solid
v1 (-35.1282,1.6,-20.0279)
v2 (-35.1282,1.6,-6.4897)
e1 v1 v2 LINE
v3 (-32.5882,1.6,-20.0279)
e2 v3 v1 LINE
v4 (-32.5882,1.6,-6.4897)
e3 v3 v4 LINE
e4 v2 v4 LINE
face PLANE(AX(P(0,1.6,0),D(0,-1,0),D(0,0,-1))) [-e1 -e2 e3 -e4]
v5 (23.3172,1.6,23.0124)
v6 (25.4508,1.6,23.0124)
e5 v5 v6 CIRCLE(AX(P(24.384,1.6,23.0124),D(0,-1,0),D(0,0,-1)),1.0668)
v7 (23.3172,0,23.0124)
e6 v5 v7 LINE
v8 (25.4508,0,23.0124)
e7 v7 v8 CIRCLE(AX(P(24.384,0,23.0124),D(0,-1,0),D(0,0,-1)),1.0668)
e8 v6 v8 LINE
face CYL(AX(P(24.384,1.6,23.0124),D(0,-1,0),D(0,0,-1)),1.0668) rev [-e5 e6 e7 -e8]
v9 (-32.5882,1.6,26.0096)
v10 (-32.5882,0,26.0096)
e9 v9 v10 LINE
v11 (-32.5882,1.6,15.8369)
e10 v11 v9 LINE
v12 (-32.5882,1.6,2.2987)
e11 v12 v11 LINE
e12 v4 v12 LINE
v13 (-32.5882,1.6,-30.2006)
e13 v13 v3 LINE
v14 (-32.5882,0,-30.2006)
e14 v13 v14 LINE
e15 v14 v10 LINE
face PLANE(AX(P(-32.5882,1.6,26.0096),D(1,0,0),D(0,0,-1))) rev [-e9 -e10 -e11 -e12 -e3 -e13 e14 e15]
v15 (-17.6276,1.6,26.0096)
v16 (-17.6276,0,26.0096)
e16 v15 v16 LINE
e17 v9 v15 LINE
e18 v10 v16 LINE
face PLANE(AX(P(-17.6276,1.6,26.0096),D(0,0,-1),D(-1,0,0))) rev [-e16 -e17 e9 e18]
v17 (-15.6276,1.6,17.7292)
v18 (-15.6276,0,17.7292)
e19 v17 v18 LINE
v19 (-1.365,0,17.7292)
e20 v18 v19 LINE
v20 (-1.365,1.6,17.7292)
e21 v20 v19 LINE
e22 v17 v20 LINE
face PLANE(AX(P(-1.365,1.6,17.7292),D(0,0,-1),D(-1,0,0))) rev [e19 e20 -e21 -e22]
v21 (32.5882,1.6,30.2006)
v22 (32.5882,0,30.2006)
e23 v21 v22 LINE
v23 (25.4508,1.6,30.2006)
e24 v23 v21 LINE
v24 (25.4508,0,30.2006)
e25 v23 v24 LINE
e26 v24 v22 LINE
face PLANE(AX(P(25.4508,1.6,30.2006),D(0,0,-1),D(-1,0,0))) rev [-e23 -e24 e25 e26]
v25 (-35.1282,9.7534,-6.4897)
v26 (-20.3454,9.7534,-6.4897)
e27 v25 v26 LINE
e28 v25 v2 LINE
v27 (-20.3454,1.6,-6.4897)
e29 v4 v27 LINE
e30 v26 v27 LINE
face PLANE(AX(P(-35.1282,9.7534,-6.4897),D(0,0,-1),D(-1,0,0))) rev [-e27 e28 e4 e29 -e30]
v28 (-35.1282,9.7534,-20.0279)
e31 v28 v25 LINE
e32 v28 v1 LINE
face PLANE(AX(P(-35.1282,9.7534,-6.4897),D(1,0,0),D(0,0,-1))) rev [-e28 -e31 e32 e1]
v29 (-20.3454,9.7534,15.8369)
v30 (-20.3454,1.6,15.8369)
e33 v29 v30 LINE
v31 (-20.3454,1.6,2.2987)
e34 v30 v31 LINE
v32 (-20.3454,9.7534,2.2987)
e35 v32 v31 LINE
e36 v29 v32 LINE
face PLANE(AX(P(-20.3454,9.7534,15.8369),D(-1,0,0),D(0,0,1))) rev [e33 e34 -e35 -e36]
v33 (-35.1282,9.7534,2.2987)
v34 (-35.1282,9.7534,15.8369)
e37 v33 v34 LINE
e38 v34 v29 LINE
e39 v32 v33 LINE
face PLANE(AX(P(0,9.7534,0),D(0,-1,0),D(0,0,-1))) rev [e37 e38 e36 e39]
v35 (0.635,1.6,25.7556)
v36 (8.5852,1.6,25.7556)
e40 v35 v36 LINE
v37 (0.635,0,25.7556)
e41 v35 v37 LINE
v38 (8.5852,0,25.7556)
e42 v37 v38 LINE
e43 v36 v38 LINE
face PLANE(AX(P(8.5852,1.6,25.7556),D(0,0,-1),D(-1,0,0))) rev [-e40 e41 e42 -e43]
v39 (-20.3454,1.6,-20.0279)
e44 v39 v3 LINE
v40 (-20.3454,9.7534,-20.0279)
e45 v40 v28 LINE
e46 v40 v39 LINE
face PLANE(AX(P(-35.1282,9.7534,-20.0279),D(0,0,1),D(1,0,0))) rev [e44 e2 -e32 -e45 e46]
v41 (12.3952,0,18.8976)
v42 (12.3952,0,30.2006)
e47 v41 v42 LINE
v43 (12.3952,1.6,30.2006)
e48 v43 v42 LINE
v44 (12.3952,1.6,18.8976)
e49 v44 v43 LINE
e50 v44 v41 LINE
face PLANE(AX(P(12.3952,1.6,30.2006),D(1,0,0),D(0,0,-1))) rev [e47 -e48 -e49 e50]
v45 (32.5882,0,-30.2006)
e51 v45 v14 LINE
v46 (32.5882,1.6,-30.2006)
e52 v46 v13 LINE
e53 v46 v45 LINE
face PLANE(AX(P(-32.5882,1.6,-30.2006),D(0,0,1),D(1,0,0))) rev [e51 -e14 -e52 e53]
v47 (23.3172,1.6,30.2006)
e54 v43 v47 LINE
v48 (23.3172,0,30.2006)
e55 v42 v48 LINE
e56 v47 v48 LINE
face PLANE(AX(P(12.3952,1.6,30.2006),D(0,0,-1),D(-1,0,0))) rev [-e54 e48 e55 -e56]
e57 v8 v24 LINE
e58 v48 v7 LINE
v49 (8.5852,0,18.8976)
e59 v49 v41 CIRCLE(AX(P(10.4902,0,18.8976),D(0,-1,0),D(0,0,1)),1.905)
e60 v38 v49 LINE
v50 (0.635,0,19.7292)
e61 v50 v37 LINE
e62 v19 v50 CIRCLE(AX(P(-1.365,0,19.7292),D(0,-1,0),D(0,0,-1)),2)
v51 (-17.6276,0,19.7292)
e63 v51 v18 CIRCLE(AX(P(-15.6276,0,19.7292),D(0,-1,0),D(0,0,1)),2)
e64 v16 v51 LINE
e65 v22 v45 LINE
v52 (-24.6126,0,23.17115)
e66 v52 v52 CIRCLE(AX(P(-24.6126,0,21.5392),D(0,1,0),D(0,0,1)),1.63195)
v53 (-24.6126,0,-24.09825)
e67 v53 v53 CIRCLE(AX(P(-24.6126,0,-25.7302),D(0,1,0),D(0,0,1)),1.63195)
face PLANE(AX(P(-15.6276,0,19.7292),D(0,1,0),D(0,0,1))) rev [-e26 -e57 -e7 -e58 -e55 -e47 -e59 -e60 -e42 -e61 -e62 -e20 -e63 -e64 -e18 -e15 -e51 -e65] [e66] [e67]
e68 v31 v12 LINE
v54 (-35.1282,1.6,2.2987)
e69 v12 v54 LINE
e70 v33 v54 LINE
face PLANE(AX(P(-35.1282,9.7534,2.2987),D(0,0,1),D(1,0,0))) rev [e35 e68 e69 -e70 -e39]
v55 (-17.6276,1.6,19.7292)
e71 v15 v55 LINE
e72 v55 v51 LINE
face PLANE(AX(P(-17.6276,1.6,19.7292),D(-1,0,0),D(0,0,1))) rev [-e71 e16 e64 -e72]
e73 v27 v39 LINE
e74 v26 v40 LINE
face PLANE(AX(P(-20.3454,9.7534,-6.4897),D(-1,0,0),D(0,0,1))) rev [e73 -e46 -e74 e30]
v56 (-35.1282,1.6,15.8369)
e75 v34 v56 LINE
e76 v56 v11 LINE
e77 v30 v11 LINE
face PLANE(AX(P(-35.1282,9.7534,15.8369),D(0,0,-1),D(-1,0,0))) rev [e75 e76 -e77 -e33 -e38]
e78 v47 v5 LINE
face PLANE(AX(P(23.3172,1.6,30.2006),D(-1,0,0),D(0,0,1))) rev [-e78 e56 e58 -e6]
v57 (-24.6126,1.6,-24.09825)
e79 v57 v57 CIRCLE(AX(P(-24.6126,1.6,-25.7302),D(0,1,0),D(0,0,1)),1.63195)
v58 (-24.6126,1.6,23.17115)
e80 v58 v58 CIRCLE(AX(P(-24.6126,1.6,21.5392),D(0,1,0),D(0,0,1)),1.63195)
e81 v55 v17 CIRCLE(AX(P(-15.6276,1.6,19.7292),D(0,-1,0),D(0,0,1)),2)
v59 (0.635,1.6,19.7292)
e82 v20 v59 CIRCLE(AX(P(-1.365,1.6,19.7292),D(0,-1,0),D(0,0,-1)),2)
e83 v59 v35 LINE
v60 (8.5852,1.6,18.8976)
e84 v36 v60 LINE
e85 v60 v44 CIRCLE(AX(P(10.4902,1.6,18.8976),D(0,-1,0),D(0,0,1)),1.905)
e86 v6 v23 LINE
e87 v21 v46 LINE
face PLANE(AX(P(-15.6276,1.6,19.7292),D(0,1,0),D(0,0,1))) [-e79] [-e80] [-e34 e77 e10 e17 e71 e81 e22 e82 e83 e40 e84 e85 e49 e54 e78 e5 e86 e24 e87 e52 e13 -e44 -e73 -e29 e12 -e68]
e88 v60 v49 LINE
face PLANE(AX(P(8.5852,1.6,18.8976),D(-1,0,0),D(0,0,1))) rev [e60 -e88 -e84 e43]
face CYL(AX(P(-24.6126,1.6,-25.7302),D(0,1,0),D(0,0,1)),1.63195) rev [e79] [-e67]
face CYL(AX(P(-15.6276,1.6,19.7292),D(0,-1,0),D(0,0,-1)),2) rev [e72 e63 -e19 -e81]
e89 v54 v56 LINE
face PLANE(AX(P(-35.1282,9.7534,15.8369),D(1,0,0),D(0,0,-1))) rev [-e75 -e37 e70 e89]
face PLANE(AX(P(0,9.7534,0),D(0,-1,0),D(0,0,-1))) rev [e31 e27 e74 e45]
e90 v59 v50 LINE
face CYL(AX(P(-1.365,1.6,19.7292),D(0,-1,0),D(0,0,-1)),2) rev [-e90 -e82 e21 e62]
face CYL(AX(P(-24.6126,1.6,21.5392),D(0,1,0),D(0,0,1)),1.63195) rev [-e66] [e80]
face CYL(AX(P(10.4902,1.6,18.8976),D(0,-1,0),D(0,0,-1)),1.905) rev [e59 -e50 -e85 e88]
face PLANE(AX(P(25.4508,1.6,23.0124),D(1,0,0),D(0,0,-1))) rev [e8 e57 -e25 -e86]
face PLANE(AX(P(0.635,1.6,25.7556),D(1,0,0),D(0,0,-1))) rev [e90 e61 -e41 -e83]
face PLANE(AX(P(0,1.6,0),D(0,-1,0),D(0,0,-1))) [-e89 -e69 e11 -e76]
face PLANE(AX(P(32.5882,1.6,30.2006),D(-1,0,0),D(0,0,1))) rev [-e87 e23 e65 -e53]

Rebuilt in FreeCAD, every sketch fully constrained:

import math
import FreeCAD as App
import Part
import Sketcher

V = App.Vector
Q = App.Units.Quantity

doc = App.newDocument("Part")
params = doc.addObject("Spreadsheet::Sheet", "Params")
for row, (alias, value) in enumerate([
    ("sketch1_radius", "0.042 in"),
    ("sketch1_radius2", "0.075 in"),
    ("sketch1_width", "0.43 in"),
    ("sketch1_height", "0.27 in"),
    ("sketch1_width2", "0.281 in"),
    ("pad1_length", "1.6 mm"),
    ("hole_diameter", "0.1285 in"),
    ("sketch3_width", "0.582 in"),
    ("sketch3_height", "0.533 in"),
    ("pad2_length", "0.321 in"),
], start=1):
    params.set(f"A{row}", alias)
    params.set(f"B{row}", "=" + value)
    params.setAlias(f"B{row}", alias)

body = doc.addObject("PartDesign::Body", "Body")

# Sketch on XZ plane
sketch1 = doc.addObject("Sketcher::SketchObject", "Sketch")
body.addObject(sketch1)
sketch1.AttachmentSupport = (doc.XZ_Plane, [""])
sketch1.MapMode = "FlatFace"
sketch1.addGeometry([
    Part.LineSegment(V(23.3, 30.2, 0), V(23.3, 23, 0)),  # 0
    Part.ArcOfCircle(Part.Circle(V(24.4, 23, 0), V(0, 0, 1), 1.1), math.radians(180), math.radians(360)),  # 1
    Part.LineSegment(V(25.5, 23, 0), V(25.5, 30.2, 0)),  # 2
    Part.LineSegment(V(25.5, 30.2, 0), V(32.6, 30.2, 0)),  # 3
    Part.LineSegment(V(32.6, 30.2, 0), V(32.6, -30.2, 0)),  # 4
    Part.LineSegment(V(32.6, -30.2, 0), V(-32.6, -30.2, 0)),  # 5
    Part.LineSegment(V(-32.6, -30.2, 0), V(-32.6, 26, 0)),  # 6
    Part.LineSegment(V(-32.6, 26, 0), V(-17.6, 26, 0)),  # 7
    Part.LineSegment(V(-17.6, 26, 0), V(-17.6, 19.7, 0)),  # 8
    Part.ArcOfCircle(Part.Circle(V(-15.6, 19.7, 0), V(0, 0, 1), 2), math.radians(-180), math.radians(-90)),  # 9
    Part.LineSegment(V(-15.6, 17.7, 0), V(-1.4, 17.7, 0)),  # 10
    Part.ArcOfCircle(Part.Circle(V(-1.4, 19.7, 0), V(0, 0, 1), 2), math.radians(-90), math.radians(0)),  # 11
    Part.LineSegment(V(0.6, 19.7, 0), V(0.6, 25.8, 0)),  # 12
    Part.LineSegment(V(0.6, 25.8, 0), V(8.6, 25.8, 0)),  # 13
    Part.LineSegment(V(8.6, 25.8, 0), V(8.6, 18.9, 0)),  # 14
    Part.ArcOfCircle(Part.Circle(V(10.5, 18.9, 0), V(0, 0, 1), 1.9), math.radians(180), math.radians(360)),  # 15
    Part.LineSegment(V(12.4, 18.9, 0), V(12.4, 30.2, 0)),  # 16
    Part.LineSegment(V(12.4, 30.2, 0), V(23.3, 30.2, 0)),  # 17
], False)
sketch1.addConstraint([
    Sketcher.Constraint("Tangent", 0, 2, 1, 1),
    Sketcher.Constraint("Tangent", 1, 2, 2, 1),
    Sketcher.Constraint("Coincident", 2, 2, 3, 1),
    Sketcher.Constraint("Coincident", 3, 2, 4, 1),
    Sketcher.Constraint("Coincident", 4, 2, 5, 1),
    Sketcher.Constraint("Coincident", 5, 2, 6, 1),
    Sketcher.Constraint("Coincident", 6, 2, 7, 1),
    Sketcher.Constraint("Coincident", 7, 2, 8, 1),
    Sketcher.Constraint("Tangent", 8, 2, 9, 1),
    Sketcher.Constraint("Tangent", 9, 2, 10, 1),
    Sketcher.Constraint("Tangent", 10, 2, 11, 1),
    Sketcher.Constraint("Tangent", 11, 2, 12, 1),
    Sketcher.Constraint("Coincident", 12, 2, 13, 1),
    Sketcher.Constraint("Coincident", 13, 2, 14, 1),
    Sketcher.Constraint("Tangent", 14, 2, 15, 1),
    Sketcher.Constraint("Tangent", 15, 2, 16, 1),
    Sketcher.Constraint("Coincident", 16, 2, 17, 1),
    Sketcher.Constraint("Coincident", 17, 2, 0, 1),
    Sketcher.Constraint("Vertical", 0),
    Sketcher.Constraint("Vertical", 2),
    Sketcher.Constraint("Horizontal", 3),
    Sketcher.Constraint("Vertical", 4),
    Sketcher.Constraint("Horizontal", 5),
    Sketcher.Constraint("Vertical", 6),
    Sketcher.Constraint("Horizontal", 7),
    Sketcher.Constraint("Vertical", 8),
    Sketcher.Constraint("Horizontal", 10),
    Sketcher.Constraint("Vertical", 12),
    Sketcher.Constraint("Horizontal", 13),
    Sketcher.Constraint("Vertical", 14),
    Sketcher.Constraint("Vertical", 16),
    Sketcher.Constraint("Horizontal", 17),
    Sketcher.Constraint("Equal", 9, 11),
    Sketcher.Constraint("Symmetric", 3, 2, 5, 2, -1, 1),
    Sketcher.Constraint("Horizontal", 3, 2, 16, 2),
    Sketcher.Constraint("Radius", 1, Q("0.042 in")),
    Sketcher.Constraint("Radius", 15, Q("0.075 in")),
    Sketcher.Constraint("DistanceX", 17, 1, 17, 2, Q("0.43 in")),
    Sketcher.Constraint("DistanceY", 14, 2, 14, 1, Q("0.27 in")),
    Sketcher.Constraint("DistanceX", 3, 1, 3, 2, Q("0.281 in")),
    Sketcher.Constraint("DistanceX", 5, 2, 5, 1, Q("2.566 in")),
    Sketcher.Constraint("DistanceX", 7, 1, 7, 2, Q("0.589 in")),
    Sketcher.Constraint("DistanceX", 13, 1, 13, 2, Q("0.313 in")),
    Sketcher.Constraint("DistanceY", 0, 2, 0, 1, Q("0.283 in")),
    Sketcher.Constraint("DistanceY", 4, 2, 4, 1, Q("2.378 in")),
    Sketcher.Constraint("DistanceY", 6, 1, 6, 2, Q("2.213 in")),
    Sketcher.Constraint("DistanceY", 16, 1, 16, 2, Q("0.445 in")),
    Sketcher.Constraint("Radius", 9, 2.0),
    Sketcher.Constraint("DistanceY", -1, 1, 9, 2, Q("0.698 in")),
])
sketch1.setExpression("Constraints[35]", "Params.sketch1_radius")
sketch1.setExpression("Constraints[36]", "Params.sketch1_radius2")
sketch1.setExpression("Constraints[37]", "Params.sketch1_width")
sketch1.setExpression("Constraints[38]", "Params.sketch1_height")
sketch1.setExpression("Constraints[39]", "Params.sketch1_width2")
pad1 = doc.addObject("PartDesign::Pad", "Pad")
body.addObject(pad1)
pad1.Profile = sketch1
pad1.setExpression("Length", "Params.pad1_length")
pad1.Reversed = True

# Sketch on XZ plane
sketch2 = doc.addObject("Sketcher::SketchObject", "Sketch001")
body.addObject(sketch2)
sketch2.AttachmentSupport = (doc.XZ_Plane, [""])
sketch2.MapMode = "FlatFace"
sketch2.AttachmentOffset = App.Placement(V(0, 0, -1.6), App.Rotation())
sketch2.addGeometry([
    Part.Circle(V(-24.6, -25.7, 0), V(0, 0, 1), 1.6),
    Part.Circle(V(-24.6, 21.5, 0), V(0, 0, 1), 1.6),
], False)
sketch2.addConstraint([
    Sketcher.Constraint("Equal", 0, 1),
    Sketcher.Constraint("Vertical", 0, 3, 1, 3),
    Sketcher.Constraint("Diameter", 0, Q("0.1285 in")),
    Sketcher.Constraint("DistanceX", 0, 3, -1, 1, Q("0.969 in")),
    Sketcher.Constraint("DistanceY", 0, 3, -1, 1, Q("1.013 in")),
    Sketcher.Constraint("DistanceY", -1, 1, 1, 3, Q("0.848 in")),
])
doc.recompute()
hole = doc.addObject("PartDesign::Hole", "Hole")
body.addObject(hole)
hole.Profile = sketch2
hole.ThreadType = "None"
hole.setExpression("Diameter", "Params.hole_diameter")
hole.DepthType = "ThroughAll"
hole.Reversed = True

# Sketch on XZ plane
sketch3 = doc.addObject("Sketcher::SketchObject", "Sketch002")
body.addObject(sketch3)
sketch3.AttachmentSupport = (doc.XZ_Plane, [""])
sketch3.MapMode = "FlatFace"
sketch3.AttachmentOffset = App.Placement(V(0, 0, -1.6), App.Rotation())
sketch3.addGeometry([
    Part.LineSegment(V(-35, -20, 0), V(-35, -6, 0)),  # 0
    Part.LineSegment(V(-35, -6, 0), V(-20, -6, 0)),  # 1
    Part.LineSegment(V(-20, -6, 0), V(-20, -20, 0)),  # 2
    Part.LineSegment(V(-20, -20, 0), V(-35, -20, 0)),  # 3
    Part.LineSegment(V(-35, 2, 0), V(-35, 16, 0)),  # 4
    Part.LineSegment(V(-35, 16, 0), V(-20, 16, 0)),  # 5
    Part.LineSegment(V(-20, 16, 0), V(-20, 2, 0)),  # 6
    Part.LineSegment(V(-20, 2, 0), V(-35, 2, 0)),  # 7
], False)
sketch3.addConstraint([
    Sketcher.Constraint("Coincident", 0, 2, 1, 1),
    Sketcher.Constraint("Coincident", 1, 2, 2, 1),
    Sketcher.Constraint("Coincident", 2, 2, 3, 1),
    Sketcher.Constraint("Coincident", 3, 2, 0, 1),
    Sketcher.Constraint("Coincident", 4, 2, 5, 1),
    Sketcher.Constraint("Coincident", 5, 2, 6, 1),
    Sketcher.Constraint("Coincident", 6, 2, 7, 1),
    Sketcher.Constraint("Coincident", 7, 2, 4, 1),
    Sketcher.Constraint("Vertical", 0),
    Sketcher.Constraint("Horizontal", 1),
    Sketcher.Constraint("Vertical", 2),
    Sketcher.Constraint("Horizontal", 3),
    Sketcher.Constraint("Vertical", 4),
    Sketcher.Constraint("Horizontal", 5),
    Sketcher.Constraint("Vertical", 6),
    Sketcher.Constraint("Horizontal", 7),
    Sketcher.Constraint("Vertical", 3, 2, 4, 2),
    Sketcher.Constraint("Vertical", 2, 2, 5, 2),
    Sketcher.Constraint("Equal", 2, 4),
    Sketcher.Constraint("DistanceX", 1, 1, 1, 2, Q("0.582 in")),
    Sketcher.Constraint("DistanceY", 0, 1, 0, 2, Q("0.533 in")),
    Sketcher.Constraint("DistanceX", 0, 2, -1, 1, Q("1.383 in")),
    Sketcher.Constraint("DistanceY", 0, 2, 4, 2, Q("0.879 in")),
    Sketcher.Constraint("DistanceY", 0, 2, -1, 1, Q("0.2555 in")),
])
sketch3.setExpression("Constraints[19]", "Params.sketch3_width")
sketch3.setExpression("Constraints[20]", "Params.sketch3_height")
pad2 = doc.addObject("PartDesign::Pad", "Pad001")
body.addObject(pad2)
pad2.Profile = sketch3
pad2.setExpression("Length", "Params.pad2_length")
pad2.Reversed = True

doc.recompute()
